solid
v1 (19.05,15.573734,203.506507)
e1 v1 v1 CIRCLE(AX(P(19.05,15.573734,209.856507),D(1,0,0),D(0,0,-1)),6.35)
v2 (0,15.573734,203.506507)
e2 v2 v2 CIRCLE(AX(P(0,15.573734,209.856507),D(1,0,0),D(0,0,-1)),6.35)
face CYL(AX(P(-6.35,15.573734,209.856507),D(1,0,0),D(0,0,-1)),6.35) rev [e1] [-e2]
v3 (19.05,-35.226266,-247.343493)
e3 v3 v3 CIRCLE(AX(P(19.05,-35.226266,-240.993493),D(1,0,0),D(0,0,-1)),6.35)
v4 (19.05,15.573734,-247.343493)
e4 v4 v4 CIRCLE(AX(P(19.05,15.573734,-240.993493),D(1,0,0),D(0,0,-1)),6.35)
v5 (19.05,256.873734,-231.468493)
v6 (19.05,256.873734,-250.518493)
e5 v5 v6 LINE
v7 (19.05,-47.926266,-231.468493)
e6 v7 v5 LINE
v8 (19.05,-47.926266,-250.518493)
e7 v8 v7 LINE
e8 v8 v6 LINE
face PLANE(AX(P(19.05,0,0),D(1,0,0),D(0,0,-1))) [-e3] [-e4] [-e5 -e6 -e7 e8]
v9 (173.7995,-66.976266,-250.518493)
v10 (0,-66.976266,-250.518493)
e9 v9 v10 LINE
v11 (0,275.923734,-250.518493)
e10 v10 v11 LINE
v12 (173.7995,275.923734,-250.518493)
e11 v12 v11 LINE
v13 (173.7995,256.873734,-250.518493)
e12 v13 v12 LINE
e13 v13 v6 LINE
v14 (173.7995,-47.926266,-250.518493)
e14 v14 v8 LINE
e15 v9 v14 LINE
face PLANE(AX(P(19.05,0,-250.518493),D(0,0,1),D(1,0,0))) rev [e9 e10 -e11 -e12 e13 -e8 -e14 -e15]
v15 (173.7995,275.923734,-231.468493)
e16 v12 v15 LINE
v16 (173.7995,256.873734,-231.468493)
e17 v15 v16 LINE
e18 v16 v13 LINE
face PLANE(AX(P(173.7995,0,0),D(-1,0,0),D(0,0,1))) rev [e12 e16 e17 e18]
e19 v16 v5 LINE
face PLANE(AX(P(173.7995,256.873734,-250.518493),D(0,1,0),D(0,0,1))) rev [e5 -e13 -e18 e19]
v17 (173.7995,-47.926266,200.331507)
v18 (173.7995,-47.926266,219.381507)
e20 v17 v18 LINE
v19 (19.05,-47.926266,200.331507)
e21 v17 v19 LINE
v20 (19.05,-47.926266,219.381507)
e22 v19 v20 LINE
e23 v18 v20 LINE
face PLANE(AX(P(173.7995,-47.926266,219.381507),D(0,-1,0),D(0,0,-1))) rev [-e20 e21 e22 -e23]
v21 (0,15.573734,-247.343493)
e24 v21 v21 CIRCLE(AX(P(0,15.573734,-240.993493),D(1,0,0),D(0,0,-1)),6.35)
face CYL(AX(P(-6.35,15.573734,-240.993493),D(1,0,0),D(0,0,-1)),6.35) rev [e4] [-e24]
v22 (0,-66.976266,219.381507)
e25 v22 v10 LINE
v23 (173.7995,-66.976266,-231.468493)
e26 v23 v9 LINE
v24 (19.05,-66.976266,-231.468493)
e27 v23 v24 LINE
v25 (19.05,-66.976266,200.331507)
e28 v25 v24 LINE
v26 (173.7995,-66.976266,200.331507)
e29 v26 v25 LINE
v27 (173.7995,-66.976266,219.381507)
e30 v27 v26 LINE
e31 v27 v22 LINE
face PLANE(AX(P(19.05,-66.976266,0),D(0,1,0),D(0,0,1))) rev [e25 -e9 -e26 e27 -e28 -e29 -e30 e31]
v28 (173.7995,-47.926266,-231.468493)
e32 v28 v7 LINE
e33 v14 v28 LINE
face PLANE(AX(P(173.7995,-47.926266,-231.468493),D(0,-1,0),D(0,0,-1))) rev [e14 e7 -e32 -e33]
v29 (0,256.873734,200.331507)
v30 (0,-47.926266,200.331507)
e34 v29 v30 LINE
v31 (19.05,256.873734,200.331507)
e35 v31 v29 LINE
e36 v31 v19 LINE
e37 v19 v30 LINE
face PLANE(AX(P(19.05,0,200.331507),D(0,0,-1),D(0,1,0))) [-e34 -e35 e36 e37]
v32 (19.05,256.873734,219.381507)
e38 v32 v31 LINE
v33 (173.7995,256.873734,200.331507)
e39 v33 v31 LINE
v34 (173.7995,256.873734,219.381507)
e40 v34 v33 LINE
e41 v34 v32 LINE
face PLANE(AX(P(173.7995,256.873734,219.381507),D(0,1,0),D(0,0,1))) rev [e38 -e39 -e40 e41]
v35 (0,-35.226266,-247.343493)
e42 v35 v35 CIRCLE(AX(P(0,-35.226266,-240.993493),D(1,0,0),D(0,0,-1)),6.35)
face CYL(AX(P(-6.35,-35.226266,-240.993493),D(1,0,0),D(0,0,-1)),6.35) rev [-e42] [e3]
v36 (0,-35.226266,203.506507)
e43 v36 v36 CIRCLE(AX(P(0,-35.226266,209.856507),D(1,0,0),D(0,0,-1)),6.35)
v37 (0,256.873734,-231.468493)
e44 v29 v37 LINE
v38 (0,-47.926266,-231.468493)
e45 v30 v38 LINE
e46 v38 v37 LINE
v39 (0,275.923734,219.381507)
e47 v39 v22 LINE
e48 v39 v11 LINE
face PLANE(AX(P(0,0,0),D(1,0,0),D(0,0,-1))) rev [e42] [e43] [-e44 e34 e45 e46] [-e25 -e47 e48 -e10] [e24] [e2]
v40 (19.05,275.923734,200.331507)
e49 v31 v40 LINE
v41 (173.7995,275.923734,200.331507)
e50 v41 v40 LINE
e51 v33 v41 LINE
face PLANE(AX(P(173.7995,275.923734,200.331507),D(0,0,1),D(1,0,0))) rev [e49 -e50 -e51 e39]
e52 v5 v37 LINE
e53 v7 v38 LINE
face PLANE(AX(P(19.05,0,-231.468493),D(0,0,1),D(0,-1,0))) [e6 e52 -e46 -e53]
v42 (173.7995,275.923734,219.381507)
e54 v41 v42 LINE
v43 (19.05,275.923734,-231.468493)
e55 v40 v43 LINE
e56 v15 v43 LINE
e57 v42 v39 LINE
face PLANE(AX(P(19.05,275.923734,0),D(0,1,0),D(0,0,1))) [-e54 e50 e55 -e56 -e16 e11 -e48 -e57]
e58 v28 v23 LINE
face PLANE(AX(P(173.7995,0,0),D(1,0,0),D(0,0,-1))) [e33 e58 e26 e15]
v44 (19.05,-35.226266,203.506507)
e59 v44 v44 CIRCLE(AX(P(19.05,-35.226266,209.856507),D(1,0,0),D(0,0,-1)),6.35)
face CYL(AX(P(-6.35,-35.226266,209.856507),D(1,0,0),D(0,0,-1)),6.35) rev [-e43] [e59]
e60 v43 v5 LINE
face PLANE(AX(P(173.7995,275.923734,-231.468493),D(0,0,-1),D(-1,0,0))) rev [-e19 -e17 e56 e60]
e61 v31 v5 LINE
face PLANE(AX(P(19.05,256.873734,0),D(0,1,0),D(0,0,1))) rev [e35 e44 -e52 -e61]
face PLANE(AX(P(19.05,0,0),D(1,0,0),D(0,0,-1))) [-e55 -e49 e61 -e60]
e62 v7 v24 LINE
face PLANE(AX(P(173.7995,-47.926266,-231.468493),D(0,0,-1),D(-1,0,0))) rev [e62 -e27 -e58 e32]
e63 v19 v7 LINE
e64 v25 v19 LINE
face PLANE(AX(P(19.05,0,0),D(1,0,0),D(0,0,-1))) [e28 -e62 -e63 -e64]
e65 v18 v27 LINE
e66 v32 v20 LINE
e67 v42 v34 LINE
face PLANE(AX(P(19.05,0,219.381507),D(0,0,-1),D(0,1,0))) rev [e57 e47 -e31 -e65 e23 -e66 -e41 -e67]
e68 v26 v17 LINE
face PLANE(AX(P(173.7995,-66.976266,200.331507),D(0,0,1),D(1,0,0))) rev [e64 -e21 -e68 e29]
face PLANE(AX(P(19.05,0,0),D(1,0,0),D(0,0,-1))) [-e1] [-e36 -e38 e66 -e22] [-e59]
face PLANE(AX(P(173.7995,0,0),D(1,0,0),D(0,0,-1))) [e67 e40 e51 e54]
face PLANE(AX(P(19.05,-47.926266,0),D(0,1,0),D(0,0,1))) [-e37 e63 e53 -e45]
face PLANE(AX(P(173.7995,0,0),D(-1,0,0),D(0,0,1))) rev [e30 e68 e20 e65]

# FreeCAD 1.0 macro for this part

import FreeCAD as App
import Part
import Sketcher
from FreeCAD import Vector
Q = App.Units.Quantity


def add_polygon(sketch, points):
    """Adds a closed chain of lines whose ends are joined by coincident constraints."""
    first, n = sketch.GeometryCount, len(points)
    for a, b in zip(points, points[1:] + points[:1]):
        sketch.addGeometry(Part.LineSegment(App.Vector(*a, 0), App.Vector(*b, 0)), False)
    for i in range(n):
        sketch.addConstraint(Sketcher.Constraint("Coincident", first + i, 2, first + (i + 1) % n, 1))

doc = App.newDocument("Part")
body = doc.addObject("PartDesign::Body", "Body")

# Sketch on YZ plane
sketch1 = doc.addObject("Sketcher::SketchObject", "Sketch")
body.addObject(sketch1)
sketch1.AttachmentSupport = (doc.YZ_Plane, [""])
sketch1.MapMode = "FlatFace"
add_polygon(sketch1, [(276, 219), (-67, 219), (-67, -251), (276, -251)])  # lines 0-3
add_polygon(sketch1, [(257, 200), (257, -231), (-48, -231), (-48, 200)])  # lines 4-7
sketch1.addConstraint(Sketcher.Constraint("Horizontal", 0))
sketch1.addConstraint(Sketcher.Constraint("Vertical", 1))
sketch1.addConstraint(Sketcher.Constraint("Horizontal", 2))
sketch1.addConstraint(Sketcher.Constraint("Vertical", 3))
sketch1.addConstraint(Sketcher.Constraint("Vertical", 4))
sketch1.addConstraint(Sketcher.Constraint("Horizontal", 5))
sketch1.addConstraint(Sketcher.Constraint("Vertical", 6))
sketch1.addConstraint(Sketcher.Constraint("Horizontal", 7))
sketch1.addConstraint(Sketcher.Constraint("DistanceX", 5, 2, 5, 1, Q("12 in")))
sketch1.addConstraint(Sketcher.Constraint("DistanceY", 4, 2, 4, 1, Q("17 in")))
sketch1.addConstraint(Sketcher.Constraint("DistanceX", 0, 2, 0, 1, Q("13.5 in")))
sketch1.addConstraint(Sketcher.Constraint("DistanceY", 1, 2, 1, 1, Q("18.5 in")))
sketch1.addConstraint(Sketcher.Constraint("DistanceX", 4, 2, 2, 2, Q("0.75 in")))
sketch1.addConstraint(Sketcher.Constraint("DistanceY", 2, 2, 4, 2, Q("0.75 in")))
sketch1.addConstraint(Sketcher.Constraint("DistanceX", 0, 2, -1, 1, 66.976266))
sketch1.addConstraint(Sketcher.Constraint("DistanceY", -1, 1, 0, 2, 219.381507))
pad1 = doc.addObject("PartDesign::Pad", "Pad")
body.addObject(pad1)
pad1.Profile = sketch1
pad1.Length = Q("0.75 in")

# Sketch on YZ plane
sketch2 = doc.addObject("Sketcher::SketchObject", "Sketch001")
body.addObject(sketch2)
sketch2.AttachmentSupport = (doc.YZ_Plane, [""])
sketch2.MapMode = "FlatFace"
sketch2.AttachmentOffset = App.Placement(Vector(0, 0, 0.75 * 25.4), App.Rotation())
sketch2.addGeometry(Part.Circle(Vector(16, 210, 0), Vector(0, 0, 1), 6), False)
sketch2.addGeometry(Part.Circle(Vector(-35, 210, 0), Vector(0, 0, 1), 6), False)
sketch2.addGeometry(Part.Circle(Vector(-35, -241, 0), Vector(0, 0, 1), 6), False)
sketch2.addGeometry(Part.Circle(Vector(16, -241, 0), Vector(0, 0, 1), 6), False)
sketch2.addConstraint(Sketcher.Constraint("Equal", 0, 1))
sketch2.addConstraint(Sketcher.Constraint("Equal", 1, 2))
sketch2.addConstraint(Sketcher.Constraint("Equal", 2, 3))
sketch2.addConstraint(Sketcher.Constraint("Horizontal", 0, 3, 1, 3))
sketch2.addConstraint(Sketcher.Constraint("Horizontal", 2, 3, 3, 3))
sketch2.addConstraint(Sketcher.Constraint("Vertical", 1, 3, 2, 3))
sketch2.addConstraint(Sketcher.Constraint("Vertical", 0, 3, 3, 3))
sketch2.addConstraint(Sketcher.Constraint("Diameter", 0, Q("0.5 in")))
sketch2.addConstraint(Sketcher.Constraint("DistanceX", 1, 3, 0, 3, Q("2 in")))
sketch2.addConstraint(Sketcher.Constraint("DistanceY", 2, 3, 1, 3, Q("17.75 in")))
sketch2.addConstraint(Sketcher.Constraint("DistanceX", -1, 1, 0, 3, 15.573734))
sketch2.addConstraint(Sketcher.Constraint("DistanceY", -1, 1, 0, 3, 209.856507))
pocket1 = doc.addObject("PartDesign::Pocket", "Pocket")
body.addObject(pocket1)
pocket1.Profile = sketch2
pocket1.Length = Q("1 in")

# Sketch on YZ plane
sketch3 = doc.addObject("Sketcher::SketchObject", "Sketch002")
body.addObject(sketch3)
sketch3.AttachmentSupport = (doc.YZ_Plane, [""])
sketch3.MapMode = "FlatFace"
sketch3.AttachmentOffset = App.Placement(Vector(0, 0, 0.75 * 25.4), App.Rotation())
add_polygon(sketch3, [(-48, 219), (-67, 219), (-67, 200), (-48, 200)])  # lines 0-3
add_polygon(sketch3, [(276, 219), (257, 219), (257, 200), (276, 200)])  # lines 4-7
add_polygon(sketch3, [(276, -231), (257, -231), (257, -251), (276, -251)])  # lines 8-11
add_polygon(sketch3, [(-48, -231), (-67, -231), (-67, -251), (-48, -251)])  # lines 12-15
sketch3.addConstraint(Sketcher.Constraint("Horizontal", 0))
sketch3.addConstraint(Sketcher.Constraint("Vertical", 1))
sketch3.addConstraint(Sketcher.Constraint("Horizontal", 2))
sketch3.addConstraint(Sketcher.Constraint("Vertical", 3))
sketch3.addConstraint(Sketcher.Constraint("Horizontal", 4))
sketch3.addConstraint(Sketcher.Constraint("Vertical", 5))
sketch3.addConstraint(Sketcher.Constraint("Horizontal", 6))
sketch3.addConstraint(Sketcher.Constraint("Vertical", 7))
sketch3.addConstraint(Sketcher.Constraint("Horizontal", 8))
sketch3.addConstraint(Sketcher.Constraint("Vertical", 9))
sketch3.addConstraint(Sketcher.Constraint("Horizontal", 10))
sketch3.addConstraint(Sketcher.Constraint("Vertical", 11))
sketch3.addConstraint(Sketcher.Constraint("Horizontal", 12))
sketch3.addConstraint(Sketcher.Constraint("Vertical", 13))
sketch3.addConstraint(Sketcher.Constraint("Horizontal", 14))
sketch3.addConstraint(Sketcher.Constraint("Vertical", 15))
sketch3.addConstraint(Sketcher.Constraint("Horizontal", 3, 2, 4, 2))
sketch3.addConstraint(Sketcher.Constraint("Horizontal", 2, 2, 5, 2))
sketch3.addConstraint(Sketcher.Constraint("Horizontal", 11, 2, 12, 2))
sketch3.addConstraint(Sketcher.Constraint("Horizontal", 10, 2, 13, 2))
sketch3.addConstraint(Sketcher.Constraint("Vertical", 5, 2, 8, 2))
sketch3.addConstraint(Sketcher.Constraint("Vertical", 7, 2, 10, 2))
sketch3.addConstraint(Sketcher.Constraint("Vertical", 1, 2, 12, 2))
sketch3.addConstraint(Sketcher.Constraint("Vertical", 3, 2, 14, 2))
sketch3.addConstraint(Sketcher.Constraint("Equal", 2, 4))
sketch3.addConstraint(Sketcher.Constraint("Equal", 14, 1))
sketch3.addConstraint(Sketcher.Constraint("Equal", 7, 9))
sketch3.addConstraint(Sketcher.Constraint("DistanceX", 3, 2, 4, 2, Q("12 in")))
sketch3.addConstraint(Sketcher.Constraint("DistanceY", 8, 2, 5, 2, Q("17 in")))
sketch3.addConstraint(Sketcher.Constraint("DistanceX", 0, 2, 0, 1, Q("0.75 in")))
sketch3.addConstraint(Sketcher.Constraint("DistanceX", 0, 2, -1, 1, 66.976266))
sketch3.addConstraint(Sketcher.Constraint("DistanceY", -1, 1, 0, 2, 219.381507))
pad2 = doc.addObject("PartDesign::Pad", "Pad001")
body.addObject(pad2)
pad2.Profile = sketch3
pad2.Length = Q("6.0925 in")

doc.recompute()
